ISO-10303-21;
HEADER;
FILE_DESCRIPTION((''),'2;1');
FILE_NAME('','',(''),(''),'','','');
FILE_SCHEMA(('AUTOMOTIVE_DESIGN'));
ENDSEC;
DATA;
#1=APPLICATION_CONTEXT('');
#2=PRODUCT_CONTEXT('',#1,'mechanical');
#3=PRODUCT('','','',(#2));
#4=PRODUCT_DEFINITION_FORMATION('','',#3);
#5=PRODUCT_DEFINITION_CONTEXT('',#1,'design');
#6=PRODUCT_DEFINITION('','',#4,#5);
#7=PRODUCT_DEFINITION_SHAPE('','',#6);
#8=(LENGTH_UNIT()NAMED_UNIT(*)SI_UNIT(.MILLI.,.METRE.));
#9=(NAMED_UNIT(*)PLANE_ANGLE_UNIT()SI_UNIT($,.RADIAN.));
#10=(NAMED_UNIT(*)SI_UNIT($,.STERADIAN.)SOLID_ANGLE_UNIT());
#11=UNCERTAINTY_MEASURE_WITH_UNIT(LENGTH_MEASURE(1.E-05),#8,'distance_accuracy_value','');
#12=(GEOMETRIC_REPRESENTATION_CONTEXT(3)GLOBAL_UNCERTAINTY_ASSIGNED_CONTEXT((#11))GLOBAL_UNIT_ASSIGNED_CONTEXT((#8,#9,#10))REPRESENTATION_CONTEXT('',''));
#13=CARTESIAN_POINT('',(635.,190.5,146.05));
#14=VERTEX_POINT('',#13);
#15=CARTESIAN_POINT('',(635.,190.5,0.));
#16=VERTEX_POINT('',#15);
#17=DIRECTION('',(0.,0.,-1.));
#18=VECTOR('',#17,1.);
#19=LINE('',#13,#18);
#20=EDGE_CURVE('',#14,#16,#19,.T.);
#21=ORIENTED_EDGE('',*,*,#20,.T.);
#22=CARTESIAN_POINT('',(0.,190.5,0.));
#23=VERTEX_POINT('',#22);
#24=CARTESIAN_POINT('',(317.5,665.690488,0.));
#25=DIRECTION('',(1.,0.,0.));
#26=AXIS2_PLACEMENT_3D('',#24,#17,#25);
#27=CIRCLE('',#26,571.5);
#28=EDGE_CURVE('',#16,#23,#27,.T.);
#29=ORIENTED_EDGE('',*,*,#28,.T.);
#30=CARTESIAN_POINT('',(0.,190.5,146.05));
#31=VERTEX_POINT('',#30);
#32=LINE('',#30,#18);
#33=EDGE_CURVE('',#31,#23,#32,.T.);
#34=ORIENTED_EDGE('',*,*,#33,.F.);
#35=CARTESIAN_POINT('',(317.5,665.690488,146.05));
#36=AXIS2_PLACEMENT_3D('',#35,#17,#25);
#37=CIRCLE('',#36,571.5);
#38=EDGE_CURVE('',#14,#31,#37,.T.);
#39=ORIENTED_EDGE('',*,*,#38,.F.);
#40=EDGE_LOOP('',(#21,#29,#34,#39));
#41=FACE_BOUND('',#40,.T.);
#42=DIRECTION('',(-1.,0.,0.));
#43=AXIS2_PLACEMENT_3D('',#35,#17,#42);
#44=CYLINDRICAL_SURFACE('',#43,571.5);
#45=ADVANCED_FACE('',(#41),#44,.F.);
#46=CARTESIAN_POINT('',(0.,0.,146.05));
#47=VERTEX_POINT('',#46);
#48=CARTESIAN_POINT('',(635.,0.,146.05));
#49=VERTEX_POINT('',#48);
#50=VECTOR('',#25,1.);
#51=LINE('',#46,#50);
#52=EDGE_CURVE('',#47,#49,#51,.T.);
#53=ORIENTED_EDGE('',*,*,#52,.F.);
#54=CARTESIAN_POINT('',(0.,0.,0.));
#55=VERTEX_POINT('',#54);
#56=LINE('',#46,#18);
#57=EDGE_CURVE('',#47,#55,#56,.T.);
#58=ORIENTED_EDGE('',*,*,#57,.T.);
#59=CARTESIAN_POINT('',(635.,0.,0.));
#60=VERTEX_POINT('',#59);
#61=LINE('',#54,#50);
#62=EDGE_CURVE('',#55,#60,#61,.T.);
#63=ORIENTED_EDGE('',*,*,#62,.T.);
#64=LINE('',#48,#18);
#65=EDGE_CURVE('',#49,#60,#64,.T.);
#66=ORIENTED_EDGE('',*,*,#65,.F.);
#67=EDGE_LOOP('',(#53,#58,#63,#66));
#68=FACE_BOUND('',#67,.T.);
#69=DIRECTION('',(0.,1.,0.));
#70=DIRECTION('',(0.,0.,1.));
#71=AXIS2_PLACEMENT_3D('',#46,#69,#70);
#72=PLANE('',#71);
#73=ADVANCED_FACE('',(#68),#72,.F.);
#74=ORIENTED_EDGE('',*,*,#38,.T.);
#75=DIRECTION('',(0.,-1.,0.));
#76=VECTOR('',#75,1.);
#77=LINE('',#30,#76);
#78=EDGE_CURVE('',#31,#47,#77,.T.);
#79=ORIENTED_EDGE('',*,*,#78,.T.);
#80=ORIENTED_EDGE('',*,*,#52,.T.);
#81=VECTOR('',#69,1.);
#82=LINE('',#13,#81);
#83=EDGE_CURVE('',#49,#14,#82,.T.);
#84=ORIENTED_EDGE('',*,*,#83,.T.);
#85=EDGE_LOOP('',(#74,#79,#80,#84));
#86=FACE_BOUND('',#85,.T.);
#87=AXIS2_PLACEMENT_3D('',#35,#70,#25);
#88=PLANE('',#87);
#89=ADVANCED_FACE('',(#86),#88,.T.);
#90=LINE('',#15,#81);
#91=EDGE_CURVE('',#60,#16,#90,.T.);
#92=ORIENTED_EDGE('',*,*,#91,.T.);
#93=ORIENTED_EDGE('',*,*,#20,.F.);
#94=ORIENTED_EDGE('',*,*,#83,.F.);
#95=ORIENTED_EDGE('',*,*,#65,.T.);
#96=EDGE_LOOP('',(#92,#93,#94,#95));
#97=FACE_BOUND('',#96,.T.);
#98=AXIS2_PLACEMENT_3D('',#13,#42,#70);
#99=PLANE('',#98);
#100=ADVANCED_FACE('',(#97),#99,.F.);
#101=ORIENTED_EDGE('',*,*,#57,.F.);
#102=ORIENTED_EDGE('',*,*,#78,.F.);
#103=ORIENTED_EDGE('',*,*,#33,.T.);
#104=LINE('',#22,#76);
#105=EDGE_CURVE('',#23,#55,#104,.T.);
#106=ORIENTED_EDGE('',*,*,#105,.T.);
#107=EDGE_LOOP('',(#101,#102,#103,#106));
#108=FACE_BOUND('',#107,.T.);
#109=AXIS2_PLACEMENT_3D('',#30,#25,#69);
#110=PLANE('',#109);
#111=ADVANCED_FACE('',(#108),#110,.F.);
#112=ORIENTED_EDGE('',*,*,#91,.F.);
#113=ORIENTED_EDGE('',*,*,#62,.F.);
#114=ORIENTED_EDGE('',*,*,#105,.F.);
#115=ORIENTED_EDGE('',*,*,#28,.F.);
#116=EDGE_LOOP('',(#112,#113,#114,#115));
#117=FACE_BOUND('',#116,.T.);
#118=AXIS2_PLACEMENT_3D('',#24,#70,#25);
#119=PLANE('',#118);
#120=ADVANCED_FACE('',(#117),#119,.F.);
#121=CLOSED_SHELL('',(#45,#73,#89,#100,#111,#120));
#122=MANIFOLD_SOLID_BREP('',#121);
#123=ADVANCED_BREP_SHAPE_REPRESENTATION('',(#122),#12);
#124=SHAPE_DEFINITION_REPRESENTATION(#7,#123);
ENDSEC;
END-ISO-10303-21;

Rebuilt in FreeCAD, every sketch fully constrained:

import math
import FreeCAD as App
import Part
import Sketcher
Q = App.Units.Quantity

doc = App.newDocument("Part")
body = doc.addObject("PartDesign::Body", "Body")

sketch1 = body.newObject("Sketcher::SketchObject", "Sketch")
sketch1.AttachmentSupport = (doc.getObject("XY_Plane"), [""])
sketch1.MapMode = "FlatFace"
sketch1.addGeometry(Part.LineSegment(App.Vector(0, 0, 0), App.Vector(635, 0, 0)), False)
sketch1.addGeometry(Part.LineSegment(App.Vector(635, 0, 0), App.Vector(635, 190.5, 0)), False)
sketch1.addGeometry(Part.ArcOfCircle(Part.Circle(App.Vector(317.5, 665.690488, 0), App.Vector(0, 0, 1), 571.5), math.radians(-123.748989), math.radians(-56.251011)), False)
sketch1.addGeometry(Part.LineSegment(App.Vector(0, 190.5, 0), App.Vector(0, 0, 0)), False)
sketch1.addConstraint(Sketcher.Constraint("Coincident", 0, 2, 1, 1))
sketch1.addConstraint(Sketcher.Constraint("Coincident", 1, 2, 2, 2))
sketch1.addConstraint(Sketcher.Constraint("Coincident", 2, 1, 3, 1))
sketch1.addConstraint(Sketcher.Constraint("Coincident", 3, 2, 0, 1))
sketch1.addConstraint(Sketcher.Constraint("Horizontal", 0))
sketch1.addConstraint(Sketcher.Constraint("Vertical", 1))
sketch1.addConstraint(Sketcher.Constraint("Vertical", 3))
sketch1.addConstraint(Sketcher.Constraint("Coincident", 3, 2, -1, 1))
sketch1.addConstraint(Sketcher.Constraint("Horizontal", 1, 2, 2, 1))
sketch1.addConstraint(Sketcher.Constraint("Radius", 2, Q("22.5 in")))
sketch1.addConstraint(Sketcher.Constraint("DistanceX", 0, 1, 0, 2, Q("25 in")))
sketch1.addConstraint(Sketcher.Constraint("DistanceY", 1, 1, 1, 2, Q("7.5 in")))
pad1 = body.newObject("PartDesign::Pad", "Pad")
pad1.Profile = sketch1
pad1.Length = Q("5.75 in")

doc.recompute()
